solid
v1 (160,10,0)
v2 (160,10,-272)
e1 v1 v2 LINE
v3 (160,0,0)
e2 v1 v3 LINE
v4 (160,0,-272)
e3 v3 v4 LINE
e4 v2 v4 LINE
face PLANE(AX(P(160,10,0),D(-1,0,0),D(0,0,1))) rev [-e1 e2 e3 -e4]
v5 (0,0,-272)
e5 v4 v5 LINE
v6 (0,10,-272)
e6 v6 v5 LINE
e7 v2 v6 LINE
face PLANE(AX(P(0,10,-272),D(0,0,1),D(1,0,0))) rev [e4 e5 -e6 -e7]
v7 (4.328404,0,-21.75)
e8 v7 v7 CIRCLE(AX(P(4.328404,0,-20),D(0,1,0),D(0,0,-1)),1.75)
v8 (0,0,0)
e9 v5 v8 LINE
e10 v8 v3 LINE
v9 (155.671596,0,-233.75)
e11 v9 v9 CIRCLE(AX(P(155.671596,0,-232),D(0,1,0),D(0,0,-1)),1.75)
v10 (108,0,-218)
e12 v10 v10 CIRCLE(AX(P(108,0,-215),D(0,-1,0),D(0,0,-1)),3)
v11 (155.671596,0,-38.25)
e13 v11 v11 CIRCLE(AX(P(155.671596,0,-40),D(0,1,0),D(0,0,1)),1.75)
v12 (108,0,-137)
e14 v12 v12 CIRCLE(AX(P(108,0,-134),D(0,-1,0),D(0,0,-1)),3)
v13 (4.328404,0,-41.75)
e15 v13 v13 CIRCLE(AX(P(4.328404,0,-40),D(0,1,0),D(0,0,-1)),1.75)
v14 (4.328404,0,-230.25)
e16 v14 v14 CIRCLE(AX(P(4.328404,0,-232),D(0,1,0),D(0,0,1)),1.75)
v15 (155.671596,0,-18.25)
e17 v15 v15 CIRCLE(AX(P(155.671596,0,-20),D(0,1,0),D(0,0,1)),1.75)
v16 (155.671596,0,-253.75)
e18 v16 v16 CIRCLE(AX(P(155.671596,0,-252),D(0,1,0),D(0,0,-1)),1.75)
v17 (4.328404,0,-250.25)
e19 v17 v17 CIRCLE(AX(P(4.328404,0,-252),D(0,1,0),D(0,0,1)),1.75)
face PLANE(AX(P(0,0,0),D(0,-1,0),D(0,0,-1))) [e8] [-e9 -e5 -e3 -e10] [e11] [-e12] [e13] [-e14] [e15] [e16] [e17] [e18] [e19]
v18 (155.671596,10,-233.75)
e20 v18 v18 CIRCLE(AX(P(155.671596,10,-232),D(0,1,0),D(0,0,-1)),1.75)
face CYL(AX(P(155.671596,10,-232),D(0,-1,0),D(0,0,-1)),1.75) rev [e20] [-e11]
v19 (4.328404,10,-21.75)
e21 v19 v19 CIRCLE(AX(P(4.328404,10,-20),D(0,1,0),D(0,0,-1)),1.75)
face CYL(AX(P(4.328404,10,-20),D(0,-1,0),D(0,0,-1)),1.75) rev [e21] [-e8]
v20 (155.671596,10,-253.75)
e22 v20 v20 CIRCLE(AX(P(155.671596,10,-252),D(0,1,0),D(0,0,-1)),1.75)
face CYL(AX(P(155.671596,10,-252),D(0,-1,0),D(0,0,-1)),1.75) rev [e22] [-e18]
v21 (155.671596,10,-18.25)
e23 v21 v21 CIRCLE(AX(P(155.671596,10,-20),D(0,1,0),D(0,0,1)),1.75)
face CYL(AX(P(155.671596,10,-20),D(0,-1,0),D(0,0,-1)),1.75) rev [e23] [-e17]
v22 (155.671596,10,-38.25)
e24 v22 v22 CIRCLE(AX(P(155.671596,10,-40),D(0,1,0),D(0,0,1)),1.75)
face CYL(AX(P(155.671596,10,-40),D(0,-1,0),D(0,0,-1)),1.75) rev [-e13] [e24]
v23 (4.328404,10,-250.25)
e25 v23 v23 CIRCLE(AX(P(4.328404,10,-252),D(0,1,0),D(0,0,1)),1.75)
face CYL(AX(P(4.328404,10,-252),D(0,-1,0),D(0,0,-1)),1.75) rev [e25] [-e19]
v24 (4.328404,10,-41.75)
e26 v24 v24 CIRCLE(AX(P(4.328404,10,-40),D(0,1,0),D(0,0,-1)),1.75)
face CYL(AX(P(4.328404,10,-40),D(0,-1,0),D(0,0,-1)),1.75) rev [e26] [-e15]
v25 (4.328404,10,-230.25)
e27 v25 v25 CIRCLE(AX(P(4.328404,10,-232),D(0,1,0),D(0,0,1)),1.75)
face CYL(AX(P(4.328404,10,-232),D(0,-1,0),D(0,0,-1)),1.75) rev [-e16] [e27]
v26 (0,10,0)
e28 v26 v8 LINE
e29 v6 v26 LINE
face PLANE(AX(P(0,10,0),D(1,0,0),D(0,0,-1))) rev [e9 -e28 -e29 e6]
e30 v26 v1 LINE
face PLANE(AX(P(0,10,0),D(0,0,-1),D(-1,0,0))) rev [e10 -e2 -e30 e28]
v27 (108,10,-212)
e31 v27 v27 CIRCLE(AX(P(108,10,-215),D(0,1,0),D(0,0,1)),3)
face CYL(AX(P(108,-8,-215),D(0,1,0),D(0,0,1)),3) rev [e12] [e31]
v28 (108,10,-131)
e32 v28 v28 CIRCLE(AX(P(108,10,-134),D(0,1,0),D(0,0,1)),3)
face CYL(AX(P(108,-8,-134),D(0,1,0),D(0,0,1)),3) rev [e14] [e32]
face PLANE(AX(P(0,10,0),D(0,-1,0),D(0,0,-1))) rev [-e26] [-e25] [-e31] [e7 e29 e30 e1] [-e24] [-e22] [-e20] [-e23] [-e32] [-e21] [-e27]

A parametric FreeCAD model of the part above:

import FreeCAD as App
import Part
import Sketcher
from FreeCAD import Vector


def add_polygon(sketch, points):
    """Adds a closed chain of lines whose ends are joined by coincident constraints."""
    first, n = sketch.GeometryCount, len(points)
    for a, b in zip(points, points[1:] + points[:1]):
        sketch.addGeometry(Part.LineSegment(App.Vector(*a, 0), App.Vector(*b, 0)), False)
    for i in range(n):
        sketch.addConstraint(Sketcher.Constraint("Coincident", first + i, 2, first + (i + 1) % n, 1))

doc = App.newDocument("Part")
body = doc.addObject("PartDesign::Body", "Body")

sketch1 = body.newObject("Sketcher::SketchObject", "Sketch")
sketch1.AttachmentSupport = (doc.getObject("XZ_Plane"), [""])
sketch1.MapMode = "FlatFace"
add_polygon(sketch1, [(0, -272), (0, 0), (160, 0), (160, -272)])
sketch1.addGeometry(Part.Circle(Vector(4.3, -20, 0), Vector(0, 0, 1), 1.8), False)
sketch1.addGeometry(Part.Circle(Vector(4.3, -40, 0), Vector(0, 0, 1), 1.8), False)
sketch1.addGeometry(Part.Circle(Vector(155.7, -20, 0), Vector(0, 0, 1), 1.8), False)
sketch1.addGeometry(Part.Circle(Vector(155.7, -40, 0), Vector(0, 0, 1), 1.8), False)
sketch1.addGeometry(Part.Circle(Vector(4.3, -232, 0), Vector(0, 0, 1), 1.8), False)
sketch1.addGeometry(Part.Circle(Vector(4.3, -252, 0), Vector(0, 0, 1), 1.8), False)
sketch1.addGeometry(Part.Circle(Vector(155.7, -232, 0), Vector(0, 0, 1), 1.8), False)
sketch1.addGeometry(Part.Circle(Vector(155.7, -252, 0), Vector(0, 0, 1), 1.8), False)
sketch1.addConstraint(Sketcher.Constraint("Vertical", 0))
sketch1.addConstraint(Sketcher.Constraint("Horizontal", 1))
sketch1.addConstraint(Sketcher.Constraint("Vertical", 2))
sketch1.addConstraint(Sketcher.Constraint("Horizontal", 3))
sketch1.addConstraint(Sketcher.Constraint("Coincident", 0, 2, -1, 1))
sketch1.addConstraint(Sketcher.Constraint("Equal", 4, 5))
sketch1.addConstraint(Sketcher.Constraint("Equal", 5, 6))
sketch1.addConstraint(Sketcher.Constraint("Equal", 6, 7))
sketch1.addConstraint(Sketcher.Constraint("Equal", 7, 8))
sketch1.addConstraint(Sketcher.Constraint("Equal", 8, 9))
sketch1.addConstraint(Sketcher.Constraint("Equal", 9, 10))
sketch1.addConstraint(Sketcher.Constraint("Equal", 10, 11))
sketch1.addConstraint(Sketcher.Constraint("Horizontal", 4, 3, 6, 3))
sketch1.addConstraint(Sketcher.Constraint("Horizontal", 5, 3, 7, 3))
sketch1.addConstraint(Sketcher.Constraint("Horizontal", 8, 3, 10, 3))
sketch1.addConstraint(Sketcher.Constraint("Horizontal", 9, 3, 11, 3))
sketch1.addConstraint(Sketcher.Constraint("Vertical", 4, 3, 5, 3))
sketch1.addConstraint(Sketcher.Constraint("Vertical", 6, 3, 7, 3))
sketch1.addConstraint(Sketcher.Constraint("Vertical", 5, 3, 8, 3))
sketch1.addConstraint(Sketcher.Constraint("Vertical", 8, 3, 9, 3))
sketch1.addConstraint(Sketcher.Constraint("Vertical", 7, 3, 10, 3))
sketch1.addConstraint(Sketcher.Constraint("Vertical", 10, 3, 11, 3))
sketch1.addConstraint(Sketcher.Constraint("Diameter", 4, 3.5))
sketch1.addConstraint(Sketcher.Constraint("DistanceX", 1, 1, 1, 2, 160.0))
sketch1.addConstraint(Sketcher.Constraint("DistanceY", 0, 1, 0, 2, 272.0))
sketch1.addConstraint(Sketcher.Constraint("DistanceY", 4, 3, -1, 1, 20.0))
sketch1.addConstraint(Sketcher.Constraint("DistanceY", 5, 3, -1, 1, 40.0))
sketch1.addConstraint(Sketcher.Constraint("DistanceY", 8, 3, -1, 1, 232.0))
sketch1.addConstraint(Sketcher.Constraint("DistanceY", 9, 3, -1, 1, 252.0))
sketch1.addConstraint(Sketcher.Constraint("DistanceX", -1, 1, 4, 3, 4.328404))
sketch1.addConstraint(Sketcher.Constraint("DistanceX", -1, 1, 6, 3, 155.671596))
pad1 = body.newObject("PartDesign::Pad", "Pad")
pad1.Profile = sketch1
pad1.Length = 10
pad1.Reversed = True

sketch2 = body.newObject("Sketcher::SketchObject", "Sketch001")
sketch2.AttachmentSupport = (doc.getObject("XZ_Plane"), [""])
sketch2.MapMode = "FlatFace"
sketch2.AttachmentOffset = App.Placement(Vector(0, 0, -10), App.Rotation())
sketch2.addGeometry(Part.Circle(Vector(108, -134, 0), Vector(0, 0, 1), 3), False)
sketch2.addGeometry(Part.Circle(Vector(108, -215, 0), Vector(0, 0, 1), 3), False)
sketch2.addConstraint(Sketcher.Constraint("Equal", 0, 1))
sketch2.addConstraint(Sketcher.Constraint("Vertical", 0, 3, 1, 3))
sketch2.addConstraint(Sketcher.Constraint("Diameter", 0, 6.0))
sketch2.addConstraint(Sketcher.Constraint("DistanceX", -1, 1, 0, 3, 108.0))
sketch2.addConstraint(Sketcher.Constraint("DistanceY", 0, 3, -1, 1, 134.0))
sketch2.addConstraint(Sketcher.Constraint("DistanceY", 1, 3, -1, 1, 215.0))
pocket1 = body.newObject("PartDesign::Pocket", "Pocket")
pocket1.Profile = sketch2
pocket1.Length = 18
pocket1.Reversed = True

doc.recompute()
